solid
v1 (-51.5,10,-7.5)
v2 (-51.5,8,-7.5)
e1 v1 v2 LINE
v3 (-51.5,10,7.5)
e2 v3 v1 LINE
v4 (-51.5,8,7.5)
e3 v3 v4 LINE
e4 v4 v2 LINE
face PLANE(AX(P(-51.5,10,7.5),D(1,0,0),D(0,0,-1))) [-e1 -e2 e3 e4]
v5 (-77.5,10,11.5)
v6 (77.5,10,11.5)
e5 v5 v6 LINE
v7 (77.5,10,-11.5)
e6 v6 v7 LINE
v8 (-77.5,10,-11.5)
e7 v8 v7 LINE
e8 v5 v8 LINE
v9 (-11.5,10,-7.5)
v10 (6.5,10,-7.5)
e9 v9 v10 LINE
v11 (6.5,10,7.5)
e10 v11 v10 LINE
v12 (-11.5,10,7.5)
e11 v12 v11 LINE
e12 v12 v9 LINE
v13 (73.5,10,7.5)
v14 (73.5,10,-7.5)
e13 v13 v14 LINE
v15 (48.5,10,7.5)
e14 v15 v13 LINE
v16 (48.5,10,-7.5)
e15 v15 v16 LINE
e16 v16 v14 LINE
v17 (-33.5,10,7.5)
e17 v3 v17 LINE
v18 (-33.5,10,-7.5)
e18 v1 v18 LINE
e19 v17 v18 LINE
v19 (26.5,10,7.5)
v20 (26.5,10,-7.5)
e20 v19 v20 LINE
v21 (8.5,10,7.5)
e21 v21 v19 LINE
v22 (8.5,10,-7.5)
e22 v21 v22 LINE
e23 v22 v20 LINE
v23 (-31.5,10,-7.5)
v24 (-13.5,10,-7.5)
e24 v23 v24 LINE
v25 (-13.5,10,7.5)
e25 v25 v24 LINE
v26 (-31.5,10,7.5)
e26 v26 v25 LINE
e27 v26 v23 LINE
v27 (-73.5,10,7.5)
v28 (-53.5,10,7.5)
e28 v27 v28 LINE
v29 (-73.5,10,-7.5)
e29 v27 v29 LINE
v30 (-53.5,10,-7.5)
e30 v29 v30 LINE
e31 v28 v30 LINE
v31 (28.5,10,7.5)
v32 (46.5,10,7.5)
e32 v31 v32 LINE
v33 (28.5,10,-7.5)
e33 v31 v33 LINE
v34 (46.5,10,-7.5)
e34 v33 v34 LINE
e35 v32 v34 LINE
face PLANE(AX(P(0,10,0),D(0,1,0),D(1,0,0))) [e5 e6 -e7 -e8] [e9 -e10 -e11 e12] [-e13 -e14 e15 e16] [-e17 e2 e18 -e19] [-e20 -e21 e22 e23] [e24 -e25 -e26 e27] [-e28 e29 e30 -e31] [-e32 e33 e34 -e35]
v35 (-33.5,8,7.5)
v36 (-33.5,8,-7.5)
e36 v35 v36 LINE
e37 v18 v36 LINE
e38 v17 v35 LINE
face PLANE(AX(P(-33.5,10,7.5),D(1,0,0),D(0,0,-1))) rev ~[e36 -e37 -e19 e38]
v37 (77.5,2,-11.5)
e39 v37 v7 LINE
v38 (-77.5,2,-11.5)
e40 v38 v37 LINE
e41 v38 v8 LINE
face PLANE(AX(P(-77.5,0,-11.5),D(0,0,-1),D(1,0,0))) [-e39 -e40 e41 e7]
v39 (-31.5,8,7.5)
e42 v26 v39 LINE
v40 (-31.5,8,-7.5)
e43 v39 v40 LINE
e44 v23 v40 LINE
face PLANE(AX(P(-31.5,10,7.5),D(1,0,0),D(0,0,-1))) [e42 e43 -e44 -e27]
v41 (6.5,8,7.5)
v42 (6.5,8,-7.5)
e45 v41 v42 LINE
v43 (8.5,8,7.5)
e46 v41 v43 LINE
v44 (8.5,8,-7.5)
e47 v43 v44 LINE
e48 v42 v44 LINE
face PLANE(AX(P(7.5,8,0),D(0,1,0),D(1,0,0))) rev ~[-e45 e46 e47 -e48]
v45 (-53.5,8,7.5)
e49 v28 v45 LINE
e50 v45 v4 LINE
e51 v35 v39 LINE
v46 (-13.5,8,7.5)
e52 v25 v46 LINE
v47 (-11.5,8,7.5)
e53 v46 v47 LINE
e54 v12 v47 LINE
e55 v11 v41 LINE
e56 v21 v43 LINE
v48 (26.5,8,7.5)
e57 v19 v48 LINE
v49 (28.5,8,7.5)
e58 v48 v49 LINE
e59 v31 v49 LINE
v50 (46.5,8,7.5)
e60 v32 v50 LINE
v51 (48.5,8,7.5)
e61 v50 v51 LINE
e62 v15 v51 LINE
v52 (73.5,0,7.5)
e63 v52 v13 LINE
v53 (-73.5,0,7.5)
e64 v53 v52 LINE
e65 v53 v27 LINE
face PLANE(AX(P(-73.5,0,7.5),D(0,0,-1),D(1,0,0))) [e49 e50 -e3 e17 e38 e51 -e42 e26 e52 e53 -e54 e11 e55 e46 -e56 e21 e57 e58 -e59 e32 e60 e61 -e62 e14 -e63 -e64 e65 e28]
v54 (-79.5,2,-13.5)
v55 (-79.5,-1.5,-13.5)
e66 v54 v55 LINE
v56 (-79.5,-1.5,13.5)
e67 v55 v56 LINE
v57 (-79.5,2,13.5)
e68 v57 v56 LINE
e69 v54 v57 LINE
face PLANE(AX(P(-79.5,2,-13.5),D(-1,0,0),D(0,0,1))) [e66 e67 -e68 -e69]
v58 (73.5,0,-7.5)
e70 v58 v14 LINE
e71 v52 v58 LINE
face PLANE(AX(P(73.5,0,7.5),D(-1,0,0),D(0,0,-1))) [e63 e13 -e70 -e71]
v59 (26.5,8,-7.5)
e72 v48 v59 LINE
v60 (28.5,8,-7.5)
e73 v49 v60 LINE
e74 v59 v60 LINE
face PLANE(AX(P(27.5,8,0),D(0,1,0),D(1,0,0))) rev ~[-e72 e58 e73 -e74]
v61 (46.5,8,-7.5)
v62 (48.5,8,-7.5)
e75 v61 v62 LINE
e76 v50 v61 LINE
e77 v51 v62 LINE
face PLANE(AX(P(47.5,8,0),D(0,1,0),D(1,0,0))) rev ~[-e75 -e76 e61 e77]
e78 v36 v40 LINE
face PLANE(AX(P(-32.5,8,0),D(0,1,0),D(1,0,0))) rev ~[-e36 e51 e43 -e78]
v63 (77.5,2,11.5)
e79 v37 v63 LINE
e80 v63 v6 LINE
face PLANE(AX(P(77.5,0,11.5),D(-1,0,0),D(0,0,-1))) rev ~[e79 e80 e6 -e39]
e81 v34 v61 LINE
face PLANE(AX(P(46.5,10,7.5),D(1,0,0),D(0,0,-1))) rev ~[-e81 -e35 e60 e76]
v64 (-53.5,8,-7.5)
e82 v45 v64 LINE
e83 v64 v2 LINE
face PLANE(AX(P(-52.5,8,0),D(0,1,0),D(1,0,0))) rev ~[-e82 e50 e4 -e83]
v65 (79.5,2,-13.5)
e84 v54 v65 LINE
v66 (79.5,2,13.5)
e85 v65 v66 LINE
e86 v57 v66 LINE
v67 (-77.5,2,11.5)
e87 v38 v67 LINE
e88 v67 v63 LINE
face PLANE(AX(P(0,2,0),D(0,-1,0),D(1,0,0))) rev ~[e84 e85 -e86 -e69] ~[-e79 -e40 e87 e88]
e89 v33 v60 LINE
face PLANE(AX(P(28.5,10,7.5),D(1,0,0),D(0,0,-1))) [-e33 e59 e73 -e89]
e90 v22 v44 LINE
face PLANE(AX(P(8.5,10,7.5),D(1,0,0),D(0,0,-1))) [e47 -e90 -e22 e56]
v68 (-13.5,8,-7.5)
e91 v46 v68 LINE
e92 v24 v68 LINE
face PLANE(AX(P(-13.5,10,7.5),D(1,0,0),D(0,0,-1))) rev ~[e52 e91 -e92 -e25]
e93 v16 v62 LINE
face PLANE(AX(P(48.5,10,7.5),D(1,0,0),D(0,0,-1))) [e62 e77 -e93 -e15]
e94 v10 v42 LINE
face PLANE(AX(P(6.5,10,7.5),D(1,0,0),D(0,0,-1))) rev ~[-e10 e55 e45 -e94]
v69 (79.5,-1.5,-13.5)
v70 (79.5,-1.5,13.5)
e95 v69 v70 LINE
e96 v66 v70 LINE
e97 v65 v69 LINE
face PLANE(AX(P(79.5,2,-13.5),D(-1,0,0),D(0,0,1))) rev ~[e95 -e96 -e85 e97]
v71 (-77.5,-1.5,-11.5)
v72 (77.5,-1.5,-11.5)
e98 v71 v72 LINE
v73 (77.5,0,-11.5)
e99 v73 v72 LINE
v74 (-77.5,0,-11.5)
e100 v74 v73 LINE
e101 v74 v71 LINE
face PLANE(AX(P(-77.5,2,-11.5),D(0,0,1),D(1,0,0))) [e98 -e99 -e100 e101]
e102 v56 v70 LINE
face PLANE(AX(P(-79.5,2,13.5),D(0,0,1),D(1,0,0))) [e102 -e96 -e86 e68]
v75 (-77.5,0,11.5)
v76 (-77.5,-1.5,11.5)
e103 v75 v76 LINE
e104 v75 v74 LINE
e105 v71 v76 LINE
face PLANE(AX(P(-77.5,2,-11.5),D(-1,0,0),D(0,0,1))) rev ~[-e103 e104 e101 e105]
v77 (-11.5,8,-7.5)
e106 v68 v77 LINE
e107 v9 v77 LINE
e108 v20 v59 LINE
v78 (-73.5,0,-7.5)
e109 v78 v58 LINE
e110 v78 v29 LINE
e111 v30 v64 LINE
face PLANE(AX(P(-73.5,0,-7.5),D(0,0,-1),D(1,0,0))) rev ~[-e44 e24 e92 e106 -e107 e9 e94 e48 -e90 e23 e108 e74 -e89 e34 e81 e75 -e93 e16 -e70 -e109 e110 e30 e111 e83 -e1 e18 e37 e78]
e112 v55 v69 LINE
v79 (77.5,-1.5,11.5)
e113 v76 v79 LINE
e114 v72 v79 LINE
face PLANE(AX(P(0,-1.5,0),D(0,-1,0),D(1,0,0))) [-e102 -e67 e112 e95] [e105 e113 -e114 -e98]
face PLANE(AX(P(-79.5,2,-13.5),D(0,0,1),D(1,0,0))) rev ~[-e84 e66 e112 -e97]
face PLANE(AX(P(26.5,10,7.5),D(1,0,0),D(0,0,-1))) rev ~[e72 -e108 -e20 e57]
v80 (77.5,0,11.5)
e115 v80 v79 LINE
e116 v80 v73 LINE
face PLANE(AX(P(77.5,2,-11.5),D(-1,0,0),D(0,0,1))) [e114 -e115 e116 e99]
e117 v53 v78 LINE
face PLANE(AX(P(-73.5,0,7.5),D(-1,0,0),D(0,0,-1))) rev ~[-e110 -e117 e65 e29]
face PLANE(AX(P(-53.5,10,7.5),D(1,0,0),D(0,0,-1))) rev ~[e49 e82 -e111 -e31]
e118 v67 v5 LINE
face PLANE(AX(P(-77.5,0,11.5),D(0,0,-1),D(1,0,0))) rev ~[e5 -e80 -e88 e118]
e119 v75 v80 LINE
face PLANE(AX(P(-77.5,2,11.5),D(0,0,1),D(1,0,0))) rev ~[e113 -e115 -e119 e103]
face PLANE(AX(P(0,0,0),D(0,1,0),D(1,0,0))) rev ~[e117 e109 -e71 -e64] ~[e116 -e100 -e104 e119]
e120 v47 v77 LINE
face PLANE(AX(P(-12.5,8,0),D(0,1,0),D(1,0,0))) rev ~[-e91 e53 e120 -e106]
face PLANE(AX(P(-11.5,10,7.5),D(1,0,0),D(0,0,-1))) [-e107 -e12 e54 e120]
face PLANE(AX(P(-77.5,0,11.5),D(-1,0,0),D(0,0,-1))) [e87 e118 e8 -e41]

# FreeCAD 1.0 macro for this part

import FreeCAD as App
import Part
import Sketcher

V = App.Vector
Q = App.Units.Quantity


def add_polygon(sketch, points):
    """Adds a closed chain of lines whose ends are joined by coincident constraints."""
    first, n = sketch.GeometryCount, len(points)
    for a, b in zip(points, points[1:] + points[:1]):
        sketch.addGeometry(Part.LineSegment(App.Vector(*a, 0), App.Vector(*b, 0)), False)
    for i in range(n):
        sketch.addConstraint(Sketcher.Constraint("Coincident", first + i, 2, first + (i + 1) % n, 1))

doc = App.newDocument("Part")
params = doc.addObject("Spreadsheet::Sheet", "Params")
for row, (alias, value) in enumerate([
    ("sketch1_width", "155 mm"),
    ("sketch1_width2", "147 mm"),
    ("sketch1_height", "23 mm"),
    ("sketch1_height2", "15 mm"),
    ("pad1_length", "10 mm"),
    ("sketch2_width", "2 mm"),
    ("sketch2_height", "15 mm"),
    ("pad2_length", "2 mm"),
    ("sketch3_width", "159 mm"),
    ("sketch3_width2", "155 mm"),
    ("sketch3_height", "27 mm"),
    ("sketch3_height2", "23 mm"),
    ("pad3_length", "1.5 mm"),
    ("pad3_length2", "2 mm"),
], start=1):
    params.set(f"A{row}", alias)
    params.set(f"B{row}", "=" + value)
    params.setAlias(f"B{row}", alias)

body = doc.addObject("PartDesign::Body", "Body")

# Sketch on XZ plane
sketch1 = body.newObject("Sketcher::SketchObject", "Sketch")
sketch1.AttachmentSupport = (doc.getObject("XZ_Plane"), [""])
sketch1.MapMode = "FlatFace"
add_polygon(sketch1, [(-77.5, -11.5), (-77.5, 11.5), (77.5, 11.5), (77.5, -11.5)])  # lines 0-3
add_polygon(sketch1, [(73.5, 7.5), (-73.5, 7.5), (-73.5, -7.5), (73.5, -7.5)])  # lines 4-7
sketch1.addConstraint([
    Sketcher.Constraint("Vertical", 0),
    Sketcher.Constraint("Horizontal", 1),
    Sketcher.Constraint("Vertical", 2),
    Sketcher.Constraint("Horizontal", 3),
    Sketcher.Constraint("Horizontal", 4),
    Sketcher.Constraint("Vertical", 5),
    Sketcher.Constraint("Horizontal", 6),
    Sketcher.Constraint("Vertical", 7),
    Sketcher.Constraint("Symmetric", 0, 2, 2, 2, -1, 1),
    Sketcher.Constraint("Symmetric", 4, 2, 6, 2, -1, 1),
    Sketcher.Constraint("DistanceX", 1, 1, 1, 2, Q("155 mm")),
    Sketcher.Constraint("DistanceX", 4, 2, 4, 1, Q("147 mm")),
    Sketcher.Constraint("DistanceY", 0, 1, 0, 2, Q("23 mm")),
    Sketcher.Constraint("DistanceY", 5, 2, 5, 1, Q("15 mm")),
])
sketch1.setExpression("Constraints[18]", "Params.sketch1_width")
sketch1.setExpression("Constraints[19]", "Params.sketch1_width2")
sketch1.setExpression("Constraints[20]", "Params.sketch1_height")
sketch1.setExpression("Constraints[21]", "Params.sketch1_height2")
pad1 = body.newObject("PartDesign::Pad", "Pad")
pad1.Profile = sketch1
pad1.setExpression("Length", "Params.pad1_length")
pad1.Reversed = True

# Sketch on XZ plane
sketch2 = body.newObject("Sketcher::SketchObject", "Sketch001")
sketch2.AttachmentSupport = (doc.getObject("XZ_Plane"), [""])
sketch2.MapMode = "FlatFace"
sketch2.AttachmentOffset = App.Placement(V(0, 0, -10), App.Rotation())
add_polygon(sketch2, [(-53.5, -7.5), (-53.5, 7.5), (-51.5, 7.5), (-51.5, -7.5)])  # lines 0-3
add_polygon(sketch2, [(-33.5, -7.5), (-33.5, 7.5), (-31.5, 7.5), (-31.5, -7.5)])  # lines 4-7
add_polygon(sketch2, [(-13.5, -7.5), (-13.5, 7.5), (-11.5, 7.5), (-11.5, -7.5)])  # lines 8-11
add_polygon(sketch2, [(6.5, -7.5), (6.5, 7.5), (8.5, 7.5), (8.5, -7.5)])  # lines 12-15
add_polygon(sketch2, [(26.5, -7.5), (26.5, 7.5), (28.5, 7.5), (28.5, -7.5)])  # lines 16-19
add_polygon(sketch2, [(46.5, -7.5), (46.5, 7.5), (48.5, 7.5), (48.5, -7.5)])  # lines 20-23
sketch2.addConstraint([
    Sketcher.Constraint("Vertical", 0),
    Sketcher.Constraint("Horizontal", 1),
    Sketcher.Constraint("Vertical", 2),
    Sketcher.Constraint("Horizontal", 3),
    Sketcher.Constraint("Vertical", 4),
    Sketcher.Constraint("Horizontal", 5),
    Sketcher.Constraint("Vertical", 6),
    Sketcher.Constraint("Horizontal", 7),
    Sketcher.Constraint("Vertical", 8),
    Sketcher.Constraint("Horizontal", 9),
    Sketcher.Constraint("Vertical", 10),
    Sketcher.Constraint("Horizontal", 11),
    Sketcher.Constraint("Vertical", 12),
    Sketcher.Constraint("Horizontal", 13),
    Sketcher.Constraint("Vertical", 14),
    Sketcher.Constraint("Horizontal", 15),
    Sketcher.Constraint("Vertical", 16),
    Sketcher.Constraint("Horizontal", 17),
    Sketcher.Constraint("Vertical", 18),
    Sketcher.Constraint("Horizontal", 19),
    Sketcher.Constraint("Vertical", 20),
    Sketcher.Constraint("Horizontal", 21),
    Sketcher.Constraint("Vertical", 22),
    Sketcher.Constraint("Horizontal", 23),
    Sketcher.Constraint("Horizontal", 1, 2, 4, 2),
    Sketcher.Constraint("Horizontal", 3, 2, 6, 2),
    Sketcher.Constraint("Horizontal", 5, 2, 8, 2),
    Sketcher.Constraint("Horizontal", 7, 2, 10, 2),
    Sketcher.Constraint("Horizontal", 9, 2, 12, 2),
    Sketcher.Constraint("Horizontal", 11, 2, 14, 2),
    Sketcher.Constraint("Horizontal", 13, 2, 16, 2),
    Sketcher.Constraint("Horizontal", 15, 2, 18, 2),
    Sketcher.Constraint("Horizontal", 17, 2, 20, 2),
    Sketcher.Constraint("Horizontal", 19, 2, 22, 2),
    Sketcher.Constraint("Equal", 3, 5),
    Sketcher.Constraint("Equal", 7, 9),
    Sketcher.Constraint("Equal", 11, 13),
    Sketcher.Constraint("Equal", 15, 17),
    Sketcher.Constraint("Equal", 19, 21),
    Sketcher.Constraint("DistanceX", 1, 1, 1, 2, Q("2 mm")),
    Sketcher.Constraint("DistanceY", 0, 1, 0, 2, Q("15 mm")),
    Sketcher.Constraint("DistanceX", 1, 2, 4, 2, Q("18 mm")),
    Sketcher.Constraint("DistanceX", 5, 2, 8, 2, Q("18 mm")),
    Sketcher.Constraint("DistanceX", 9, 2, 12, 2, Q("18 mm")),
    Sketcher.Constraint("DistanceX", 13, 2, 16, 2, Q("18 mm")),
    Sketcher.Constraint("DistanceX", 17, 2, 20, 2, Q("18 mm")),
    Sketcher.Constraint("DistanceX", 0, 2, -1, 1, Q("53.5 mm")),
    Sketcher.Constraint("DistanceY", -1, 1, 0, 2, Q("7.5 mm")),
])
sketch2.setExpression("Constraints[63]", "Params.sketch2_width")
sketch2.setExpression("Constraints[64]", "Params.sketch2_height")
pad2 = body.newObject("PartDesign::Pad", "Pad001")
pad2.Profile = sketch2
pad2.setExpression("Length", "Params.pad2_length")

# Sketch on XZ plane
sketch3 = body.newObject("Sketcher::SketchObject", "Sketch002")
sketch3.AttachmentSupport = (doc.getObject("XZ_Plane"), [""])
sketch3.MapMode = "FlatFace"
add_polygon(sketch3, [(-79.5, 13.5), (-79.5, -13.5), (79.5, -13.5), (79.5, 13.5)])  # lines 0-3
add_polygon(sketch3, [(77.5, -11.5), (-77.5, -11.5), (-77.5, 11.5), (77.5, 11.5)])  # lines 4-7
sketch3.addConstraint([
    Sketcher.Constraint("Vertical", 0),
    Sketcher.Constraint("Horizontal", 1),
    Sketcher.Constraint("Vertical", 2),
    Sketcher.Constraint("Horizontal", 3),
    Sketcher.Constraint("Horizontal", 4),
    Sketcher.Constraint("Vertical", 5),
    Sketcher.Constraint("Horizontal", 6),
    Sketcher.Constraint("Vertical", 7),
    Sketcher.Constraint("Symmetric", 0, 2, 2, 2, -1, 1),
    Sketcher.Constraint("Symmetric", 4, 2, 6, 2, -1, 1),
    Sketcher.Constraint("DistanceX", 1, 1, 1, 2, Q("159 mm")),
    Sketcher.Constraint("DistanceX", 4, 2, 4, 1, Q("155 mm")),
    Sketcher.Constraint("DistanceY", 0, 2, 0, 1, Q("27 mm")),
    Sketcher.Constraint("DistanceY", 5, 1, 5, 2, Q("23 mm")),
])
sketch3.setExpression("Constraints[18]", "Params.sketch3_width")
sketch3.setExpression("Constraints[19]", "Params.sketch3_width2")
sketch3.setExpression("Constraints[20]", "Params.sketch3_height")
sketch3.setExpression("Constraints[21]", "Params.sketch3_height2")
pad3 = body.newObject("PartDesign::Pad", "Pad002")
pad3.Profile = sketch3
pad3.Type = "TwoLengths"
pad3.setExpression("Length", "Params.pad3_length")
pad3.setExpression("Length2", "Params.pad3_length2")

doc.recompute()
